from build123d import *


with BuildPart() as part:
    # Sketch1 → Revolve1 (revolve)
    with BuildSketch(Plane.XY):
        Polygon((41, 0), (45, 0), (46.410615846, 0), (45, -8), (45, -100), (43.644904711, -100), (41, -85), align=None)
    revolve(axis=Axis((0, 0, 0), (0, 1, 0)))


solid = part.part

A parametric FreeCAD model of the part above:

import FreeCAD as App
import Part
import Sketcher
from FreeCAD import Vector
Q = App.Units.Quantity


def add_polygon(sketch, points):
    """Adds a closed chain of lines whose ends are joined by coincident constraints."""
    first, n = sketch.GeometryCount, len(points)
    for a, b in zip(points, points[1:] + points[:1]):
        sketch.addGeometry(Part.LineSegment(App.Vector(*a, 0), App.Vector(*b, 0)), False)
    for i in range(n):
        sketch.addConstraint(Sketcher.Constraint("Coincident", first + i, 2, first + (i + 1) % n, 1))

doc = App.newDocument("Part")
params = doc.addObject("Spreadsheet::Sheet", "Params")
for row, (alias, value) in enumerate([
    ("sketch1_height", "85 mm"),
    ("sketch1_height2", "92 mm"),
    ("revolution_angle", "360 deg"),
], start=1):
    params.set(f"A{row}", alias)
    params.set(f"B{row}", "=" + value)
    params.setAlias(f"B{row}", alias)

body = doc.addObject("PartDesign::Body", "Body")

sketch1 = body.newObject("Sketcher::SketchObject", "Sketch")
sketch1.AttachmentSupport = (doc.getObject("XY_Plane"), [""])
sketch1.MapMode = "FlatFace"
add_polygon(sketch1, [(46.4, 0), (41, 0), (41, -85), (43.6, -100), (45, -100), (45, -8)])
sketch1.addConstraint([
    Sketcher.Constraint("Horizontal", 0),
    Sketcher.Constraint("Vertical", 1),
    Sketcher.Constraint("Horizontal", 3),
    Sketcher.Constraint("Vertical", 4),
    Sketcher.Constraint("PointOnObject", 0, 2, -1),
    Sketcher.Constraint("DistanceY", 1, 2, 1, 1, Q("85 mm")),
    Sketcher.Constraint("DistanceY", 4, 1, 4, 2, Q("92 mm")),
    Sketcher.Constraint("Angle", 2, Q("-80 deg")),
    Sketcher.Constraint("Angle", 5, Q("80 deg")),
    Sketcher.Constraint("DistanceX", -1, 1, 0, 2, Q("41 mm")),
    Sketcher.Constraint("DistanceY", 2, 2, -1, 1, Q("100 mm")),
    Sketcher.Constraint("DistanceX", -1, 1, 3, 2, Q("45 mm")),
])
sketch1.setExpression("Constraints[11]", "Params.sketch1_height")
sketch1.setExpression("Constraints[12]", "Params.sketch1_height2")
revolution = body.newObject("PartDesign::Revolution", "Revolution")
revolution.Profile = sketch1
revolution.ReferenceAxis = (sketch1, ["V_Axis"])
revolution.setExpression("Angle", "Params.revolution_angle")

doc.recompute()
